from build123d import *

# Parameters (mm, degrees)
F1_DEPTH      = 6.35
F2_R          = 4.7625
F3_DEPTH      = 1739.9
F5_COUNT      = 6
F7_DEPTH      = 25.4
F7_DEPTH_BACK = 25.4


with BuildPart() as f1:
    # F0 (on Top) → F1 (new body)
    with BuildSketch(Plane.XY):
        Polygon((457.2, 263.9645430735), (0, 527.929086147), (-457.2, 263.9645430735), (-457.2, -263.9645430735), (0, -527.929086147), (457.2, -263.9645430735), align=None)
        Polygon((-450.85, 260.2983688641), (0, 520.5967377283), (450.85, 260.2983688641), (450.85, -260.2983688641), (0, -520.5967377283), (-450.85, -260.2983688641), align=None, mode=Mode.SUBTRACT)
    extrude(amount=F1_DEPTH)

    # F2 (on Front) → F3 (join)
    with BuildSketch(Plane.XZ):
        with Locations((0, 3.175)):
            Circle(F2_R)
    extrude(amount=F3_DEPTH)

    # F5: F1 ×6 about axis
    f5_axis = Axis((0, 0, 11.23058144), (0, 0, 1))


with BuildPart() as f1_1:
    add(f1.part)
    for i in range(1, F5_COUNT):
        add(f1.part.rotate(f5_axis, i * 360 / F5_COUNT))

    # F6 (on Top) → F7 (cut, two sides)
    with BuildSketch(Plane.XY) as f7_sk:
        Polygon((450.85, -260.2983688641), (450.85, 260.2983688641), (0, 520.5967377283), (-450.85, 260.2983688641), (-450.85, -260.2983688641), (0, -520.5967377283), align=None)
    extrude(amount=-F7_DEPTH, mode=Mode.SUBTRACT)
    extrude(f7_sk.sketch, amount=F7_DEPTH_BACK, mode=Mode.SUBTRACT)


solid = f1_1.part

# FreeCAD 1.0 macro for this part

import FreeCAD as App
import Part
import Sketcher
Q = App.Units.Quantity

doc = App.newDocument("Part")
body = doc.addObject("PartDesign::Body", "Body")

# Sketch on XY plane
sketch1 = body.newObject("Sketcher::SketchObject", "Sketch")
sketch1.AttachmentSupport = (doc.getObject("XY_Plane"), [""])
sketch1.MapMode = "FlatFace"
sketch1.addGeometry(Part.LineSegment(App.Vector(457, 264, 0), App.Vector(0, 528, 0)), False)
sketch1.addGeometry(Part.LineSegment(App.Vector(0, 528, 0), App.Vector(-457, 264, 0)), False)
sketch1.addGeometry(Part.LineSegment(App.Vector(-457, 264, 0), App.Vector(-457, -264, 0)), False)
sketch1.addGeometry(Part.LineSegment(App.Vector(-457, -264, 0), App.Vector(0, -528, 0)), False)
sketch1.addGeometry(Part.LineSegment(App.Vector(0, -528, 0), App.Vector(457, -264, 0)), False)
sketch1.addGeometry(Part.LineSegment(App.Vector(457, -264, 0), App.Vector(457, 264, 0)), False)
sketch1.addGeometry(Part.LineSegment(App.Vector(-451, -260, 0), App.Vector(-451, 260, 0)), False)
sketch1.addGeometry(Part.LineSegment(App.Vector(-451, 260, 0), App.Vector(0, 521, 0)), False)
sketch1.addGeometry(Part.LineSegment(App.Vector(0, 521, 0), App.Vector(451, 260, 0)), False)
sketch1.addGeometry(Part.LineSegment(App.Vector(451, 260, 0), App.Vector(451, -260, 0)), False)
sketch1.addGeometry(Part.LineSegment(App.Vector(451, -260, 0), App.Vector(0, -521, 0)), False)
sketch1.addGeometry(Part.LineSegment(App.Vector(0, -521, 0), App.Vector(-451, -260, 0)), False)
sketch1.addConstraint(Sketcher.Constraint("Coincident", 0, 2, 1, 1))
sketch1.addConstraint(Sketcher.Constraint("Coincident", 1, 2, 2, 1))
sketch1.addConstraint(Sketcher.Constraint("Coincident", 2, 2, 3, 1))
sketch1.addConstraint(Sketcher.Constraint("Coincident", 3, 2, 4, 1))
sketch1.addConstraint(Sketcher.Constraint("Coincident", 4, 2, 5, 1))
sketch1.addConstraint(Sketcher.Constraint("Coincident", 5, 2, 0, 1))
sketch1.addConstraint(Sketcher.Constraint("Coincident", 6, 2, 7, 1))
sketch1.addConstraint(Sketcher.Constraint("Coincident", 7, 2, 8, 1))
sketch1.addConstraint(Sketcher.Constraint("Coincident", 8, 2, 9, 1))
sketch1.addConstraint(Sketcher.Constraint("Coincident", 9, 2, 10, 1))
sketch1.addConstraint(Sketcher.Constraint("Coincident", 10, 2, 11, 1))
sketch1.addConstraint(Sketcher.Constraint("Coincident", 11, 2, 6, 1))
sketch1.addConstraint(Sketcher.Constraint("Vertical", 2))
sketch1.addConstraint(Sketcher.Constraint("Vertical", 5))
sketch1.addConstraint(Sketcher.Constraint("Vertical", 6))
sketch1.addConstraint(Sketcher.Constraint("Vertical", 9))
sketch1.addConstraint(Sketcher.Constraint("Symmetric", 0, 2, 3, 2, -1, 1))
sketch1.addConstraint(Sketcher.Constraint("Symmetric", 1, 2, 4, 2, -1, 1))
sketch1.addConstraint(Sketcher.Constraint("Symmetric", 6, 2, 9, 2, -1, 1))
sketch1.addConstraint(Sketcher.Constraint("Symmetric", 7, 2, 10, 2, -1, 1))
sketch1.addConstraint(Sketcher.Constraint("PointOnObject", 0, 2, -2))
sketch1.addConstraint(Sketcher.Constraint("PointOnObject", 7, 2, -2))
sketch1.addConstraint(Sketcher.Constraint("Parallel", 0, 3))
sketch1.addConstraint(Sketcher.Constraint("Parallel", 4, 7))
sketch1.addConstraint(Sketcher.Constraint("Parallel", 3, 8))
sketch1.addConstraint(Sketcher.Constraint("Parallel", 8, 11))
sketch1.addConstraint(Sketcher.Constraint("Horizontal", 2, 2, 4, 2))
sketch1.addConstraint(Sketcher.Constraint("DistanceX", 1, 2, -1, 1, Q("18 in")))
sketch1.addConstraint(Sketcher.Constraint("Angle", 0, Q("150 deg")))
sketch1.addConstraint(Sketcher.Constraint("DistanceX", 6, 2, 8, 2, Q("35.5 in")))
sketch1.addConstraint(Sketcher.Constraint("DistanceY", 2, 2, 2, 1, 527.929086))
sketch1.addConstraint(Sketcher.Constraint("DistanceY", 6, 1, 6, 2, 520.596738))
pad1 = body.newObject("PartDesign::Pad", "Pad")
pad1.Profile = sketch1
pad1.Length = Q("0.25 in")

# Sketch on XZ plane
sketch2 = body.newObject("Sketcher::SketchObject", "Sketch001")
sketch2.AttachmentSupport = (doc.getObject("XZ_Plane"), [""])
sketch2.MapMode = "FlatFace"
sketch2.addGeometry(Part.Circle(App.Vector(0, 3.2, 0), App.Vector(0, 0, 1), 4.8), False)
sketch2.addConstraint(Sketcher.Constraint("PointOnObject", 0, 3, -2))
sketch2.addConstraint(Sketcher.Constraint("Diameter", 0, Q("0.375 in")))
sketch2.addConstraint(Sketcher.Constraint("DistanceY", -1, 1, 0, 3, Q("0.125 in")))
pad2 = body.newObject("PartDesign::Pad", "Pad001")
pad2.Profile = sketch2
pad2.Length = Q("68.5 in")
body2 = doc.addObject("PartDesign::Body", "Body001")
doc.recompute()

body2.BaseFeature = body
doc.recompute()

body3 = doc.addObject("PartDesign::Body", "Body002")
body3.BaseFeature = body
body3.Placement = App.Placement(App.Vector(0, 0, 0), App.Rotation(App.Vector(0, 0, 1), 60))
boolean = body2.newObject("PartDesign::Boolean", "Boolean")
boolean.Type = "Fuse"
boolean.addObjects([body3])
doc.recompute()

body4 = doc.addObject("PartDesign::Body", "Body003")
body4.BaseFeature = body
body4.Placement = App.Placement(App.Vector(0, 0, 0), App.Rotation(App.Vector(0, 0, 1), 120))
boolean2 = body2.newObject("PartDesign::Boolean", "Boolean001")
boolean2.Type = "Fuse"
boolean2.addObjects([body4])
doc.recompute()

body5 = doc.addObject("PartDesign::Body", "Body004")
body5.BaseFeature = body
body5.Placement = App.Placement(App.Vector(0, 0, 0), App.Rotation(App.Vector(0, 0, 1), 180))
boolean3 = body2.newObject("PartDesign::Boolean", "Boolean002")
boolean3.Type = "Fuse"
boolean3.addObjects([body5])
doc.recompute()

body6 = doc.addObject("PartDesign::Body", "Body005")
body6.BaseFeature = body
body6.Placement = App.Placement(App.Vector(0, 0, 0), App.Rotation(App.Vector(0, 0, 1), 240))
boolean4 = body2.newObject("PartDesign::Boolean", "Boolean003")
boolean4.Type = "Fuse"
boolean4.addObjects([body6])
doc.recompute()

body.Placement = App.Placement(App.Vector(0, 0, 0), App.Rotation(App.Vector(0, 0, 1), 300))
boolean5 = body2.newObject("PartDesign::Boolean", "Boolean004")
boolean5.Type = "Fuse"
boolean5.addObjects([body])

# Sketch on XY plane
sketch3 = body2.newObject("Sketcher::SketchObject", "Sketch002")
sketch3.AttachmentSupport = (doc.getObject("XY_Plane001"), [""])
sketch3.MapMode = "FlatFace"
sketch3.addGeometry(Part.LineSegment(App.Vector(451, -260, 0), App.Vector(451, 260, 0)), False)
sketch3.addGeometry(Part.LineSegment(App.Vector(451, 260, 0), App.Vector(0, 521, 0)), False)
sketch3.addGeometry(Part.LineSegment(App.Vector(0, 521, 0), App.Vector(-451, 260, 0)), False)
sketch3.addGeometry(Part.LineSegment(App.Vector(-451, 260, 0), App.Vector(-451, -260, 0)), False)
sketch3.addGeometry(Part.LineSegment(App.Vector(-451, -260, 0), App.Vector(0, -521, 0)), False)
sketch3.addGeometry(Part.LineSegment(App.Vector(0, -521, 0), App.Vector(451, -260, 0)), False)
sketch3.addConstraint(Sketcher.Constraint("Coincident", 0, 2, 1, 1))
sketch3.addConstraint(Sketcher.Constraint("Coincident", 1, 2, 2, 1))
sketch3.addConstraint(Sketcher.Constraint("Coincident", 2, 2, 3, 1))
sketch3.addConstraint(Sketcher.Constraint("Coincident", 3, 2, 4, 1))
sketch3.addConstraint(Sketcher.Constraint("Coincident", 4, 2, 5, 1))
sketch3.addConstraint(Sketcher.Constraint("Coincident", 5, 2, 0, 1))
sketch3.addConstraint(Sketcher.Constraint("Vertical", 0))
sketch3.addConstraint(Sketcher.Constraint("Vertical", 3))
sketch3.addConstraint(Sketcher.Constraint("Symmetric", 0, 2, 3, 2, -1, 1))
sketch3.addConstraint(Sketcher.Constraint("Symmetric", 1, 2, 4, 2, -1, 1))
sketch3.addConstraint(Sketcher.Constraint("PointOnObject", 1, 2, -2))
sketch3.addConstraint(Sketcher.Constraint("Parallel", 2, 5))
sketch3.addConstraint(Sketcher.Constraint("Horizontal", 0, 2, 2, 2))
sketch3.addConstraint(Sketcher.Constraint("Angle", 1, Q("150 deg")))
sketch3.addConstraint(Sketcher.Constraint("DistanceX", 2, 2, 0, 2, Q("35.5 in")))
sketch3.addConstraint(Sketcher.Constraint("DistanceY", 0, 1, 0, 2, 520.596738))
pocket1 = body2.newObject("PartDesign::Pocket", "Pocket")
pocket1.Profile = sketch3
pocket1.Type = "ThroughAll"
pocket1.Midplane = True

doc.recompute()
